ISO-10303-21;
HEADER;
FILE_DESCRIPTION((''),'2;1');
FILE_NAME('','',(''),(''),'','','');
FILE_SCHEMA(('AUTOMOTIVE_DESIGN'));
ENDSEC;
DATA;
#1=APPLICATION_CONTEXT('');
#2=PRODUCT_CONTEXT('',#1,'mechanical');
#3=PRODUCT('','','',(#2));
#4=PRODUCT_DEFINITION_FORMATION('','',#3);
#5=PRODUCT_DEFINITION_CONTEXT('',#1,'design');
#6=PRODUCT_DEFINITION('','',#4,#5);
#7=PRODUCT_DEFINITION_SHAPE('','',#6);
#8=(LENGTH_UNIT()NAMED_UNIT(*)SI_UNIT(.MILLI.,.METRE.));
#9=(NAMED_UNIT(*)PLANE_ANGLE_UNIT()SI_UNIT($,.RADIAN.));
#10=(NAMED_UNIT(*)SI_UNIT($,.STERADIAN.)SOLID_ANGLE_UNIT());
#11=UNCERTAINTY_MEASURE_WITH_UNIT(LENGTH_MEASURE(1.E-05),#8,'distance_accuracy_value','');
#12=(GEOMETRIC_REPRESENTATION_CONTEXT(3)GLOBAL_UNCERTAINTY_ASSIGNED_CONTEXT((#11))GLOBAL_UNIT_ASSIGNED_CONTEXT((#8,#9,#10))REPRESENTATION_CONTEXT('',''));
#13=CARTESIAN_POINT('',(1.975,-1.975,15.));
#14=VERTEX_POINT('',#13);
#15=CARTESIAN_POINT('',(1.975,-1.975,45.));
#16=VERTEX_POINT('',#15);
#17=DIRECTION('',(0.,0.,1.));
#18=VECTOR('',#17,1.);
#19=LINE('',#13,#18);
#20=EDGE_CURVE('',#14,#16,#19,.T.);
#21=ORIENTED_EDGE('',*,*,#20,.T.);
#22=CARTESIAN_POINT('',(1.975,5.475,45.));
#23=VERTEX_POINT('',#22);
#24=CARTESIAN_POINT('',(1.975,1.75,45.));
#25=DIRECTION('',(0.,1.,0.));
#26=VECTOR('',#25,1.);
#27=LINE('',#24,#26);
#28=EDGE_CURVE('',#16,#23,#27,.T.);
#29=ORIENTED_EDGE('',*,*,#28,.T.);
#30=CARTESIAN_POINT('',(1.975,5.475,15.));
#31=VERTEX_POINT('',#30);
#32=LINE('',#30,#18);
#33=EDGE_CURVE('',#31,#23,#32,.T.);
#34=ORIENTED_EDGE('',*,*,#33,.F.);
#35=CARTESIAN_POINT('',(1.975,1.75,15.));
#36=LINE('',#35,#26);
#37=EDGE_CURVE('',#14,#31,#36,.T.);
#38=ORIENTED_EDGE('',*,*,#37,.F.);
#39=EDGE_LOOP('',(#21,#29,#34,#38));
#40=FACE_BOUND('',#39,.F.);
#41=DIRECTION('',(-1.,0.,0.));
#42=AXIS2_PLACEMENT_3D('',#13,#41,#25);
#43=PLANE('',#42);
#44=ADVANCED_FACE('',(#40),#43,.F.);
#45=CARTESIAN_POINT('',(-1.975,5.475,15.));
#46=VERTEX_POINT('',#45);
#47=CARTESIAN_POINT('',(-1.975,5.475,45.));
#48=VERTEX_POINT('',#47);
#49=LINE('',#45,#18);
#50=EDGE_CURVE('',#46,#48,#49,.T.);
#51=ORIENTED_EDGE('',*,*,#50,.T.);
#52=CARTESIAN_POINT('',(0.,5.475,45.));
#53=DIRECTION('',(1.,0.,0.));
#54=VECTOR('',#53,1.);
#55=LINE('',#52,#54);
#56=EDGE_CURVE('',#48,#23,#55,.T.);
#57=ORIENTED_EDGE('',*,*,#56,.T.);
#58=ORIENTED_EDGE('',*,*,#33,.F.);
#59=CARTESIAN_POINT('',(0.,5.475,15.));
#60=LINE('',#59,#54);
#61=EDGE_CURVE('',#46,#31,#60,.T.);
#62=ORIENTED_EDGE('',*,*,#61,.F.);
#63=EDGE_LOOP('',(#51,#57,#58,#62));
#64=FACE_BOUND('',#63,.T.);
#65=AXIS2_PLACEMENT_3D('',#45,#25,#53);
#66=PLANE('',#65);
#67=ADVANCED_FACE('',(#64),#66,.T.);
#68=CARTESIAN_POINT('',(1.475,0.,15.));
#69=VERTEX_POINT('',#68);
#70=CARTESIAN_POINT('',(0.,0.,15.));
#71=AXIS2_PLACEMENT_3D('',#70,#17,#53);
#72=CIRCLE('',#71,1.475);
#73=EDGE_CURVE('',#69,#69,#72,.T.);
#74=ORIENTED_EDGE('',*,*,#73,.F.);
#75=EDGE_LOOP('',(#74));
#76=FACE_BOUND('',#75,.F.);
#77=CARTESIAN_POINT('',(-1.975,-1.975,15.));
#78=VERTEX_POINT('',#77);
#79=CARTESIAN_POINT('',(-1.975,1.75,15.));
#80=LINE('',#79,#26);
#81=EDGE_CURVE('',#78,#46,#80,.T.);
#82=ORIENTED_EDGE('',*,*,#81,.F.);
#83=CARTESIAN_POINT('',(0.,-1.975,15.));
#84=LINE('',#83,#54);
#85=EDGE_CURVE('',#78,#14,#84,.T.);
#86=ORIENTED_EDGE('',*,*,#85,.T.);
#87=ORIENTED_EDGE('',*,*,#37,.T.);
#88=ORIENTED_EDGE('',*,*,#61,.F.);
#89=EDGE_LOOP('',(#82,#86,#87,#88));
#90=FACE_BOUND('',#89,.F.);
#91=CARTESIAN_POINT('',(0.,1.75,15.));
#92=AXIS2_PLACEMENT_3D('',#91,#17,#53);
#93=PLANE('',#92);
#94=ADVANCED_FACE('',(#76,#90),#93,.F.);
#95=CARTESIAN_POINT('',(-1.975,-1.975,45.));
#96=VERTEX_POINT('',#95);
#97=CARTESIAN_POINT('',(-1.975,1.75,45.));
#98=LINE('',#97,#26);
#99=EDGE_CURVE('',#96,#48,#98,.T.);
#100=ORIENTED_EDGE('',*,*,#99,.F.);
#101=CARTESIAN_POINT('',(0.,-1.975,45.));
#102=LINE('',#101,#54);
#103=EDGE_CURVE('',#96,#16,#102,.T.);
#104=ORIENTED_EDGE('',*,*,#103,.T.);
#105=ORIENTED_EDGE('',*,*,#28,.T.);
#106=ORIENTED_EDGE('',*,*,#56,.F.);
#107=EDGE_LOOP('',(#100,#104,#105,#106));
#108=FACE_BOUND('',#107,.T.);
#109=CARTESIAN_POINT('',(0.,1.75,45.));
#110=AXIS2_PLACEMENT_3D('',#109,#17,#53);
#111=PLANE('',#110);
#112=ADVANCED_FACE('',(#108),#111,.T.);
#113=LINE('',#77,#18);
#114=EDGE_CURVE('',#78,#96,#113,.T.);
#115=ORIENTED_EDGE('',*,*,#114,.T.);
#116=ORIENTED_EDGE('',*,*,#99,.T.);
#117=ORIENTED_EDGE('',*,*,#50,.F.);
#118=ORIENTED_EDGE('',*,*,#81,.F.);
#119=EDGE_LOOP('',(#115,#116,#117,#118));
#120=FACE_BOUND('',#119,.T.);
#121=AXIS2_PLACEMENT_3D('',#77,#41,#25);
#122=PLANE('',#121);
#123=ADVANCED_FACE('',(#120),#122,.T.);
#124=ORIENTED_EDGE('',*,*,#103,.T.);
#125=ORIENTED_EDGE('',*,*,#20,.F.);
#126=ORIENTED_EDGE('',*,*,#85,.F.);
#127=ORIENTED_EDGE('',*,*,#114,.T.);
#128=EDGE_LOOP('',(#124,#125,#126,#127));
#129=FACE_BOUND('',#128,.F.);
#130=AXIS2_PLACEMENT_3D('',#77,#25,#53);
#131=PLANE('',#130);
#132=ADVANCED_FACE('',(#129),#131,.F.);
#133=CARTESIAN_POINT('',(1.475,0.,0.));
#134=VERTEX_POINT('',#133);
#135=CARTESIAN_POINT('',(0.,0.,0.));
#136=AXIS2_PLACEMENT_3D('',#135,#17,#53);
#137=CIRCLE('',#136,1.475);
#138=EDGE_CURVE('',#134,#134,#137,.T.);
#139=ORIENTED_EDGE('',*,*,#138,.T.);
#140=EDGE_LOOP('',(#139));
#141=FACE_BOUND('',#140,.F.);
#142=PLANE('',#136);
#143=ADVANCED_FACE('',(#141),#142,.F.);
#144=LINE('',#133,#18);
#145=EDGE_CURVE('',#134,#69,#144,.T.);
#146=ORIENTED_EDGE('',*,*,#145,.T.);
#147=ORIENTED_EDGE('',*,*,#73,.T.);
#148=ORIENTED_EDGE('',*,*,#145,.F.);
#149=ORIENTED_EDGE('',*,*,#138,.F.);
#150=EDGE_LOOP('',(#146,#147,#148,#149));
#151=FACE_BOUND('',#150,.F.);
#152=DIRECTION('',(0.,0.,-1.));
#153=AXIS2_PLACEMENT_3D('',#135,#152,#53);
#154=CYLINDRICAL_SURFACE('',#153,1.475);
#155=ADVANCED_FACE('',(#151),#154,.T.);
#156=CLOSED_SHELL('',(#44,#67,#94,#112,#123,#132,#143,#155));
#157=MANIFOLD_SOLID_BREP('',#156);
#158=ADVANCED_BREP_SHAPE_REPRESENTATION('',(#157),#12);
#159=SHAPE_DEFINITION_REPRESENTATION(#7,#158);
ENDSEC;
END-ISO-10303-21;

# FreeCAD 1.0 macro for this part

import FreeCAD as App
import Part
import Sketcher

V = App.Vector


def add_polygon(sketch, points):
    """Adds a closed chain of lines whose ends are joined by coincident constraints."""
    first, n = sketch.GeometryCount, len(points)
    for a, b in zip(points, points[1:] + points[:1]):
        sketch.addGeometry(Part.LineSegment(App.Vector(*a, 0), App.Vector(*b, 0)), False)
    for i in range(n):
        sketch.addConstraint(Sketcher.Constraint("Coincident", first + i, 2, first + (i + 1) % n, 1))

doc = App.newDocument("Part")
body = doc.addObject("PartDesign::Body", "Body")

# Sketch on XY plane
sketch1 = body.newObject("Sketcher::SketchObject", "Sketch")
sketch1.AttachmentSupport = (doc.getObject("XY_Plane"), [""])
sketch1.MapMode = "FlatFace"
sketch1.addGeometry(Part.Circle(V(0, 0, 0), V(0, 0, 1), 1.5), False)
sketch1.addConstraint([
    Sketcher.Constraint("Coincident", 0, 3, -1, 1),
    Sketcher.Constraint("Diameter", 0, 2.95),
])
pad1 = body.newObject("PartDesign::Pad", "Pad")
pad1.Profile = sketch1
pad1.Length = 15

# Sketch on XY plane
sketch2 = body.newObject("Sketcher::SketchObject", "Sketch001")
sketch2.AttachmentSupport = (doc.getObject("XY_Plane"), [""])
sketch2.MapMode = "FlatFace"
sketch2.AttachmentOffset = App.Placement(V(0, 0, 15), App.Rotation())
add_polygon(sketch2, [(-2, 5.5), (-2, -2), (2, -2), (2, 5.5)])  # lines 0-3
sketch2.addConstraint([
    Sketcher.Constraint("Vertical", 0),
    Sketcher.Constraint("Horizontal", 1),
    Sketcher.Constraint("Vertical", 2),
    Sketcher.Constraint("Horizontal", 3),
    Sketcher.Constraint("DistanceX", 1, 1, 1, 2, 3.95),
    Sketcher.Constraint("DistanceY", 0, 2, 0, 1, 7.45),
    Sketcher.Constraint("DistanceX", 0, 2, -1, 1, 1.975),
    Sketcher.Constraint("DistanceY", 0, 2, -1, 1, 1.975),
])
pad2 = body.newObject("PartDesign::Pad", "Pad001")
pad2.Profile = sketch2
pad2.Length = 30

doc.recompute()
